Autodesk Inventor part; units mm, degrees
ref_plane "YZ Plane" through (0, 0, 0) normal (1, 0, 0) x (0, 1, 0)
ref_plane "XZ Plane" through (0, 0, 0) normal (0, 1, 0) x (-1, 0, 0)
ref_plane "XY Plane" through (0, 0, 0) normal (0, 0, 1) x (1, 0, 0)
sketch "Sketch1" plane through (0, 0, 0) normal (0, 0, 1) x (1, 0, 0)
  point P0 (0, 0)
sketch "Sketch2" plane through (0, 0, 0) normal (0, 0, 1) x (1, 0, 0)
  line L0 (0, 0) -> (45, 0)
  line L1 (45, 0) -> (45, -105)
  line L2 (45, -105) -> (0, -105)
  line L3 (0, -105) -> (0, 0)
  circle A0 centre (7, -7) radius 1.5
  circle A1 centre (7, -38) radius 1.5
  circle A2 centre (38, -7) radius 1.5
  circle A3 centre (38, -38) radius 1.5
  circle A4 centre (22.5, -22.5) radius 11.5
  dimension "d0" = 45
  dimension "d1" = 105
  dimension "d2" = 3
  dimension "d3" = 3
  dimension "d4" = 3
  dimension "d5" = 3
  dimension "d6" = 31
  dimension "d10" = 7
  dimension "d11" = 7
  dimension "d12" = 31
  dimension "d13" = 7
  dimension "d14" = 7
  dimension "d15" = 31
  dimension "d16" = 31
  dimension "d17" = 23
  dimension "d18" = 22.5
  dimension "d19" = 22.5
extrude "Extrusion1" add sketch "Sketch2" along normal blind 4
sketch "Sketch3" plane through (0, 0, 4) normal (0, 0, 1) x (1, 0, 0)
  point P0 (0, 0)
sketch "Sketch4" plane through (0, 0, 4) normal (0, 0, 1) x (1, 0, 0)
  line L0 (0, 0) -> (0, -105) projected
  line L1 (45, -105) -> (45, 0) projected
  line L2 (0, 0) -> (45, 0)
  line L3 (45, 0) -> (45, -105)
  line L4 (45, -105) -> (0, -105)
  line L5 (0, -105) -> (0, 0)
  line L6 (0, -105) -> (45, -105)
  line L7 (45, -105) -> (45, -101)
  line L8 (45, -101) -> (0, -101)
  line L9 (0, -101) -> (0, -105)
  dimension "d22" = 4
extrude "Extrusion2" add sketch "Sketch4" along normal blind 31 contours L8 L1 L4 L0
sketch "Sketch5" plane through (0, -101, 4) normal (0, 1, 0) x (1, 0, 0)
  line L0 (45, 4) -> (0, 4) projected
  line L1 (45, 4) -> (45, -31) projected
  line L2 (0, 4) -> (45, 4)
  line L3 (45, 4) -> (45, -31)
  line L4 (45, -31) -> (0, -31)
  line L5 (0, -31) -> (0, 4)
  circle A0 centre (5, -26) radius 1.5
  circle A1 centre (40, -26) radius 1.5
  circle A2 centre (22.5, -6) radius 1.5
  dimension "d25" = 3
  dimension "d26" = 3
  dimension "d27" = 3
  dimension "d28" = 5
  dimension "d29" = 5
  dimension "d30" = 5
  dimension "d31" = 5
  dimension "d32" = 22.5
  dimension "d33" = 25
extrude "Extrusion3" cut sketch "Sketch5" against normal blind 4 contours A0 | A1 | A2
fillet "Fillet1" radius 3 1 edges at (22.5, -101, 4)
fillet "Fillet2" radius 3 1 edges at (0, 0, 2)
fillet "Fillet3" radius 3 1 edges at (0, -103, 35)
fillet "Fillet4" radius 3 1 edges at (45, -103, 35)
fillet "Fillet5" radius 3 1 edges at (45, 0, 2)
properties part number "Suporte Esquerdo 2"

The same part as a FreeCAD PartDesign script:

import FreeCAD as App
import Part
import Sketcher


def edges_at(feature, points):
    """Names of the edges that pass closest to the given points."""
    edges = feature.Shape.Edges
    near = lambda p: min(range(len(edges)), key=lambda i: edges[i].distToShape(Part.Vertex(*p))[0])
    return sorted({f"Edge{near(p) + 1}" for p in points})

doc = App.newDocument("Part")
params = doc.addObject("Spreadsheet::Sheet", "Params")
for row, (alias, value) in enumerate([
    ("sketch1_diameter", "3 mm"),
    ("sketch1_diameter2", "23 mm"),
    ("sketch1_width", "45 mm"),
    ("sketch1_height", "105 mm"),
    ("pad1_length", "4 mm"),
    ("sketch2_height", "4 mm"),
    ("sketch2_width", "45 mm"),
    ("pad2_length", "31 mm"),
    ("sketch3_diameter", "3 mm"),
    ("pocket1_length", "4 mm"),
    ("fillet_radius", "3 mm"),
    ("fillet2_radius", "3 mm"),
    ("fillet3_radius", "3 mm"),
    ("fillet4_radius", "3 mm"),
    ("fillet5_radius", "3 mm"),
], start=1):
    params.set(f"A{row}", alias)
    params.set(f"B{row}", "=" + value)
    params.setAlias(f"B{row}", alias)

body = doc.addObject("PartDesign::Body", "Body")

# Sketch on XY plane
sketch1 = doc.addObject("Sketcher::SketchObject", "Sketch")
body.addObject(sketch1)
sketch1.AttachmentSupport = (doc.XY_Plane, [""])
sketch1.MapMode = "FlatFace"
sketch1.addGeometry([
    Part.LineSegment(App.Vector(45, 0, 0), App.Vector(0, 0, 0)),  # 0
    Part.LineSegment(App.Vector(0, 0, 0), App.Vector(0, -105, 0)),  # 1
    Part.LineSegment(App.Vector(0, -105, 0), App.Vector(45, -105, 0)),  # 2
    Part.LineSegment(App.Vector(45, -105, 0), App.Vector(45, 0, 0)),  # 3
    Part.Circle(App.Vector(7, -38, 0), App.Vector(0, 0, 1), 1.5),  # 4
    Part.Circle(App.Vector(7, -7, 0), App.Vector(0, 0, 1), 1.5),  # 5
    Part.Circle(App.Vector(38, -38, 0), App.Vector(0, 0, 1), 1.5),  # 6
    Part.Circle(App.Vector(22.5, -22.5, 0), App.Vector(0, 0, 1), 11.5),  # 7
    Part.Circle(App.Vector(38, -7, 0), App.Vector(0, 0, 1), 1.5),  # 8
], False)
sketch1.addConstraint([
    Sketcher.Constraint("Coincident", 0, 2, 1, 1),
    Sketcher.Constraint("Coincident", 1, 2, 2, 1),
    Sketcher.Constraint("Coincident", 2, 2, 3, 1),
    Sketcher.Constraint("Coincident", 3, 2, 0, 1),
    Sketcher.Constraint("Horizontal", 0),
    Sketcher.Constraint("Vertical", 1),
    Sketcher.Constraint("Horizontal", 2),
    Sketcher.Constraint("Vertical", 3),
    Sketcher.Constraint("Coincident", 0, 2, -1, 1),
    Sketcher.Constraint("Equal", 4, 5),
    Sketcher.Constraint("Equal", 5, 6),
    Sketcher.Constraint("Equal", 6, 8),
    Sketcher.Constraint("Horizontal", 4, 3, 6, 3),
    Sketcher.Constraint("Horizontal", 5, 3, 8, 3),
    Sketcher.Constraint("Vertical", 4, 3, 5, 3),
    Sketcher.Constraint("Vertical", 6, 3, 8, 3),
    Sketcher.Constraint("Diameter", 4, 3.0),
    Sketcher.Constraint("Diameter", 7, 23.0),
    Sketcher.Constraint("DistanceX", 0, 2, 0, 1, 45.0),
    Sketcher.Constraint("DistanceY", 1, 2, 1, 1, 105.0),
    Sketcher.Constraint("DistanceX", -1, 1, 4, 3, 7.0),
    Sketcher.Constraint("DistanceY", 5, 3, -1, 1, 7.0),
    Sketcher.Constraint("DistanceY", 4, 3, 5, 3, 31.0),
    Sketcher.Constraint("DistanceX", 4, 3, 6, 3, 31.0),
    Sketcher.Constraint("DistanceX", -1, 1, 7, 3, 22.5),
    Sketcher.Constraint("DistanceY", 7, 3, -1, 1, 22.5),
])
sketch1.setExpression("Constraints[16]", "Params.sketch1_diameter")
sketch1.setExpression("Constraints[17]", "Params.sketch1_diameter2")
sketch1.setExpression("Constraints[18]", "Params.sketch1_width")
sketch1.setExpression("Constraints[19]", "Params.sketch1_height")
pad1 = doc.addObject("PartDesign::Pad", "Pad")
body.addObject(pad1)
pad1.Profile = sketch1
pad1.setExpression("Length", "Params.pad1_length")

# Sketch on XY plane
sketch2 = doc.addObject("Sketcher::SketchObject", "Sketch001")
body.addObject(sketch2)
sketch2.AttachmentSupport = (doc.XY_Plane, [""])
sketch2.MapMode = "FlatFace"
sketch2.AttachmentOffset = App.Placement(App.Vector(0, 0, 4), App.Rotation())
sketch2.addGeometry([
    Part.LineSegment(App.Vector(45, -101, 0), App.Vector(0, -101, 0)),
    Part.LineSegment(App.Vector(0, -101, 0), App.Vector(0, -105, 0)),
    Part.LineSegment(App.Vector(0, -105, 0), App.Vector(45, -105, 0)),
    Part.LineSegment(App.Vector(45, -105, 0), App.Vector(45, -101, 0)),
], False)
sketch2.addConstraint([
    Sketcher.Constraint("Coincident", 0, 2, 1, 1),
    Sketcher.Constraint("Coincident", 1, 2, 2, 1),
    Sketcher.Constraint("Coincident", 2, 2, 3, 1),
    Sketcher.Constraint("Coincident", 3, 2, 0, 1),
    Sketcher.Constraint("Horizontal", 0),
    Sketcher.Constraint("Vertical", 1),
    Sketcher.Constraint("Horizontal", 2),
    Sketcher.Constraint("Vertical", 3),
    Sketcher.Constraint("PointOnObject", 0, 2, -2),
    Sketcher.Constraint("DistanceY", 1, 2, 1, 1, 4.0),
    Sketcher.Constraint("DistanceX", 0, 2, 0, 1, 45.0),
    Sketcher.Constraint("DistanceY", 0, 2, -1, 1, 101.0),
])
sketch2.setExpression("Constraints[9]", "Params.sketch2_height")
sketch2.setExpression("Constraints[10]", "Params.sketch2_width")
pad2 = doc.addObject("PartDesign::Pad", "Pad001")
body.addObject(pad2)
pad2.Profile = sketch2
pad2.setExpression("Length", "Params.pad2_length")

# Sketch on XZ plane
sketch3 = doc.addObject("Sketcher::SketchObject", "Sketch002")
body.addObject(sketch3)
sketch3.AttachmentSupport = (doc.XZ_Plane, [""])
sketch3.MapMode = "FlatFace"
sketch3.AttachmentOffset = App.Placement(App.Vector(0, 0, 101), App.Rotation())
sketch3.addGeometry([
    Part.Circle(App.Vector(5, 30, 0), App.Vector(0, 0, 1), 1.5),
    Part.Circle(App.Vector(40, 30, 0), App.Vector(0, 0, 1), 1.5),
    Part.Circle(App.Vector(22.5, 10, 0), App.Vector(0, 0, 1), 1.5),
], False)
sketch3.addConstraint([
    Sketcher.Constraint("Equal", 0, 1),
    Sketcher.Constraint("Equal", 1, 2),
    Sketcher.Constraint("Horizontal", 0, 3, 1, 3),
    Sketcher.Constraint("Diameter", 0, 3.0),
    Sketcher.Constraint("DistanceX", -1, 1, 0, 3, 5.0),
    Sketcher.Constraint("DistanceX", -1, 1, 2, 3, 22.5),
    Sketcher.Constraint("DistanceY", -1, 1, 0, 3, 30.0),
    Sketcher.Constraint("DistanceX", -1, 1, 1, 3, 40.0),
    Sketcher.Constraint("DistanceY", -1, 1, 2, 3, 10.0),
])
sketch3.setExpression("Constraints[3]", "Params.sketch3_diameter")
pocket1 = doc.addObject("PartDesign::Pocket", "Pocket")
body.addObject(pocket1)
pocket1.Profile = sketch3
pocket1.setExpression("Length", "Params.pocket1_length")
pocket1.Reversed = True
doc.recompute()

fillet = doc.addObject("PartDesign::Fillet", "Fillet")
body.addObject(fillet)
fillet.Base = (pocket1, edges_at(pocket1, [(22.5, -101, 4)]))
fillet.setExpression("Radius", "Params.fillet_radius")
doc.recompute()

fillet2 = doc.addObject("PartDesign::Fillet", "Fillet001")
body.addObject(fillet2)
fillet2.Base = (fillet, edges_at(fillet, [(0, 0, 2)]))
fillet2.setExpression("Radius", "Params.fillet2_radius")
doc.recompute()

fillet3 = doc.addObject("PartDesign::Fillet", "Fillet002")
body.addObject(fillet3)
fillet3.Base = (fillet2, edges_at(fillet2, [(0, -103, 35)]))
fillet3.setExpression("Radius", "Params.fillet3_radius")
doc.recompute()

fillet4 = doc.addObject("PartDesign::Fillet", "Fillet003")
body.addObject(fillet4)
fillet4.Base = (fillet3, edges_at(fillet3, [(45, -103, 35)]))
fillet4.setExpression("Radius", "Params.fillet4_radius")
doc.recompute()

fillet5 = doc.addObject("PartDesign::Fillet", "Fillet004")
body.addObject(fillet5)
fillet5.Base = (fillet4, edges_at(fillet4, [(45, 0, 2)]))
fillet5.setExpression("Radius", "Params.fillet5_radius")

doc.recompute()
